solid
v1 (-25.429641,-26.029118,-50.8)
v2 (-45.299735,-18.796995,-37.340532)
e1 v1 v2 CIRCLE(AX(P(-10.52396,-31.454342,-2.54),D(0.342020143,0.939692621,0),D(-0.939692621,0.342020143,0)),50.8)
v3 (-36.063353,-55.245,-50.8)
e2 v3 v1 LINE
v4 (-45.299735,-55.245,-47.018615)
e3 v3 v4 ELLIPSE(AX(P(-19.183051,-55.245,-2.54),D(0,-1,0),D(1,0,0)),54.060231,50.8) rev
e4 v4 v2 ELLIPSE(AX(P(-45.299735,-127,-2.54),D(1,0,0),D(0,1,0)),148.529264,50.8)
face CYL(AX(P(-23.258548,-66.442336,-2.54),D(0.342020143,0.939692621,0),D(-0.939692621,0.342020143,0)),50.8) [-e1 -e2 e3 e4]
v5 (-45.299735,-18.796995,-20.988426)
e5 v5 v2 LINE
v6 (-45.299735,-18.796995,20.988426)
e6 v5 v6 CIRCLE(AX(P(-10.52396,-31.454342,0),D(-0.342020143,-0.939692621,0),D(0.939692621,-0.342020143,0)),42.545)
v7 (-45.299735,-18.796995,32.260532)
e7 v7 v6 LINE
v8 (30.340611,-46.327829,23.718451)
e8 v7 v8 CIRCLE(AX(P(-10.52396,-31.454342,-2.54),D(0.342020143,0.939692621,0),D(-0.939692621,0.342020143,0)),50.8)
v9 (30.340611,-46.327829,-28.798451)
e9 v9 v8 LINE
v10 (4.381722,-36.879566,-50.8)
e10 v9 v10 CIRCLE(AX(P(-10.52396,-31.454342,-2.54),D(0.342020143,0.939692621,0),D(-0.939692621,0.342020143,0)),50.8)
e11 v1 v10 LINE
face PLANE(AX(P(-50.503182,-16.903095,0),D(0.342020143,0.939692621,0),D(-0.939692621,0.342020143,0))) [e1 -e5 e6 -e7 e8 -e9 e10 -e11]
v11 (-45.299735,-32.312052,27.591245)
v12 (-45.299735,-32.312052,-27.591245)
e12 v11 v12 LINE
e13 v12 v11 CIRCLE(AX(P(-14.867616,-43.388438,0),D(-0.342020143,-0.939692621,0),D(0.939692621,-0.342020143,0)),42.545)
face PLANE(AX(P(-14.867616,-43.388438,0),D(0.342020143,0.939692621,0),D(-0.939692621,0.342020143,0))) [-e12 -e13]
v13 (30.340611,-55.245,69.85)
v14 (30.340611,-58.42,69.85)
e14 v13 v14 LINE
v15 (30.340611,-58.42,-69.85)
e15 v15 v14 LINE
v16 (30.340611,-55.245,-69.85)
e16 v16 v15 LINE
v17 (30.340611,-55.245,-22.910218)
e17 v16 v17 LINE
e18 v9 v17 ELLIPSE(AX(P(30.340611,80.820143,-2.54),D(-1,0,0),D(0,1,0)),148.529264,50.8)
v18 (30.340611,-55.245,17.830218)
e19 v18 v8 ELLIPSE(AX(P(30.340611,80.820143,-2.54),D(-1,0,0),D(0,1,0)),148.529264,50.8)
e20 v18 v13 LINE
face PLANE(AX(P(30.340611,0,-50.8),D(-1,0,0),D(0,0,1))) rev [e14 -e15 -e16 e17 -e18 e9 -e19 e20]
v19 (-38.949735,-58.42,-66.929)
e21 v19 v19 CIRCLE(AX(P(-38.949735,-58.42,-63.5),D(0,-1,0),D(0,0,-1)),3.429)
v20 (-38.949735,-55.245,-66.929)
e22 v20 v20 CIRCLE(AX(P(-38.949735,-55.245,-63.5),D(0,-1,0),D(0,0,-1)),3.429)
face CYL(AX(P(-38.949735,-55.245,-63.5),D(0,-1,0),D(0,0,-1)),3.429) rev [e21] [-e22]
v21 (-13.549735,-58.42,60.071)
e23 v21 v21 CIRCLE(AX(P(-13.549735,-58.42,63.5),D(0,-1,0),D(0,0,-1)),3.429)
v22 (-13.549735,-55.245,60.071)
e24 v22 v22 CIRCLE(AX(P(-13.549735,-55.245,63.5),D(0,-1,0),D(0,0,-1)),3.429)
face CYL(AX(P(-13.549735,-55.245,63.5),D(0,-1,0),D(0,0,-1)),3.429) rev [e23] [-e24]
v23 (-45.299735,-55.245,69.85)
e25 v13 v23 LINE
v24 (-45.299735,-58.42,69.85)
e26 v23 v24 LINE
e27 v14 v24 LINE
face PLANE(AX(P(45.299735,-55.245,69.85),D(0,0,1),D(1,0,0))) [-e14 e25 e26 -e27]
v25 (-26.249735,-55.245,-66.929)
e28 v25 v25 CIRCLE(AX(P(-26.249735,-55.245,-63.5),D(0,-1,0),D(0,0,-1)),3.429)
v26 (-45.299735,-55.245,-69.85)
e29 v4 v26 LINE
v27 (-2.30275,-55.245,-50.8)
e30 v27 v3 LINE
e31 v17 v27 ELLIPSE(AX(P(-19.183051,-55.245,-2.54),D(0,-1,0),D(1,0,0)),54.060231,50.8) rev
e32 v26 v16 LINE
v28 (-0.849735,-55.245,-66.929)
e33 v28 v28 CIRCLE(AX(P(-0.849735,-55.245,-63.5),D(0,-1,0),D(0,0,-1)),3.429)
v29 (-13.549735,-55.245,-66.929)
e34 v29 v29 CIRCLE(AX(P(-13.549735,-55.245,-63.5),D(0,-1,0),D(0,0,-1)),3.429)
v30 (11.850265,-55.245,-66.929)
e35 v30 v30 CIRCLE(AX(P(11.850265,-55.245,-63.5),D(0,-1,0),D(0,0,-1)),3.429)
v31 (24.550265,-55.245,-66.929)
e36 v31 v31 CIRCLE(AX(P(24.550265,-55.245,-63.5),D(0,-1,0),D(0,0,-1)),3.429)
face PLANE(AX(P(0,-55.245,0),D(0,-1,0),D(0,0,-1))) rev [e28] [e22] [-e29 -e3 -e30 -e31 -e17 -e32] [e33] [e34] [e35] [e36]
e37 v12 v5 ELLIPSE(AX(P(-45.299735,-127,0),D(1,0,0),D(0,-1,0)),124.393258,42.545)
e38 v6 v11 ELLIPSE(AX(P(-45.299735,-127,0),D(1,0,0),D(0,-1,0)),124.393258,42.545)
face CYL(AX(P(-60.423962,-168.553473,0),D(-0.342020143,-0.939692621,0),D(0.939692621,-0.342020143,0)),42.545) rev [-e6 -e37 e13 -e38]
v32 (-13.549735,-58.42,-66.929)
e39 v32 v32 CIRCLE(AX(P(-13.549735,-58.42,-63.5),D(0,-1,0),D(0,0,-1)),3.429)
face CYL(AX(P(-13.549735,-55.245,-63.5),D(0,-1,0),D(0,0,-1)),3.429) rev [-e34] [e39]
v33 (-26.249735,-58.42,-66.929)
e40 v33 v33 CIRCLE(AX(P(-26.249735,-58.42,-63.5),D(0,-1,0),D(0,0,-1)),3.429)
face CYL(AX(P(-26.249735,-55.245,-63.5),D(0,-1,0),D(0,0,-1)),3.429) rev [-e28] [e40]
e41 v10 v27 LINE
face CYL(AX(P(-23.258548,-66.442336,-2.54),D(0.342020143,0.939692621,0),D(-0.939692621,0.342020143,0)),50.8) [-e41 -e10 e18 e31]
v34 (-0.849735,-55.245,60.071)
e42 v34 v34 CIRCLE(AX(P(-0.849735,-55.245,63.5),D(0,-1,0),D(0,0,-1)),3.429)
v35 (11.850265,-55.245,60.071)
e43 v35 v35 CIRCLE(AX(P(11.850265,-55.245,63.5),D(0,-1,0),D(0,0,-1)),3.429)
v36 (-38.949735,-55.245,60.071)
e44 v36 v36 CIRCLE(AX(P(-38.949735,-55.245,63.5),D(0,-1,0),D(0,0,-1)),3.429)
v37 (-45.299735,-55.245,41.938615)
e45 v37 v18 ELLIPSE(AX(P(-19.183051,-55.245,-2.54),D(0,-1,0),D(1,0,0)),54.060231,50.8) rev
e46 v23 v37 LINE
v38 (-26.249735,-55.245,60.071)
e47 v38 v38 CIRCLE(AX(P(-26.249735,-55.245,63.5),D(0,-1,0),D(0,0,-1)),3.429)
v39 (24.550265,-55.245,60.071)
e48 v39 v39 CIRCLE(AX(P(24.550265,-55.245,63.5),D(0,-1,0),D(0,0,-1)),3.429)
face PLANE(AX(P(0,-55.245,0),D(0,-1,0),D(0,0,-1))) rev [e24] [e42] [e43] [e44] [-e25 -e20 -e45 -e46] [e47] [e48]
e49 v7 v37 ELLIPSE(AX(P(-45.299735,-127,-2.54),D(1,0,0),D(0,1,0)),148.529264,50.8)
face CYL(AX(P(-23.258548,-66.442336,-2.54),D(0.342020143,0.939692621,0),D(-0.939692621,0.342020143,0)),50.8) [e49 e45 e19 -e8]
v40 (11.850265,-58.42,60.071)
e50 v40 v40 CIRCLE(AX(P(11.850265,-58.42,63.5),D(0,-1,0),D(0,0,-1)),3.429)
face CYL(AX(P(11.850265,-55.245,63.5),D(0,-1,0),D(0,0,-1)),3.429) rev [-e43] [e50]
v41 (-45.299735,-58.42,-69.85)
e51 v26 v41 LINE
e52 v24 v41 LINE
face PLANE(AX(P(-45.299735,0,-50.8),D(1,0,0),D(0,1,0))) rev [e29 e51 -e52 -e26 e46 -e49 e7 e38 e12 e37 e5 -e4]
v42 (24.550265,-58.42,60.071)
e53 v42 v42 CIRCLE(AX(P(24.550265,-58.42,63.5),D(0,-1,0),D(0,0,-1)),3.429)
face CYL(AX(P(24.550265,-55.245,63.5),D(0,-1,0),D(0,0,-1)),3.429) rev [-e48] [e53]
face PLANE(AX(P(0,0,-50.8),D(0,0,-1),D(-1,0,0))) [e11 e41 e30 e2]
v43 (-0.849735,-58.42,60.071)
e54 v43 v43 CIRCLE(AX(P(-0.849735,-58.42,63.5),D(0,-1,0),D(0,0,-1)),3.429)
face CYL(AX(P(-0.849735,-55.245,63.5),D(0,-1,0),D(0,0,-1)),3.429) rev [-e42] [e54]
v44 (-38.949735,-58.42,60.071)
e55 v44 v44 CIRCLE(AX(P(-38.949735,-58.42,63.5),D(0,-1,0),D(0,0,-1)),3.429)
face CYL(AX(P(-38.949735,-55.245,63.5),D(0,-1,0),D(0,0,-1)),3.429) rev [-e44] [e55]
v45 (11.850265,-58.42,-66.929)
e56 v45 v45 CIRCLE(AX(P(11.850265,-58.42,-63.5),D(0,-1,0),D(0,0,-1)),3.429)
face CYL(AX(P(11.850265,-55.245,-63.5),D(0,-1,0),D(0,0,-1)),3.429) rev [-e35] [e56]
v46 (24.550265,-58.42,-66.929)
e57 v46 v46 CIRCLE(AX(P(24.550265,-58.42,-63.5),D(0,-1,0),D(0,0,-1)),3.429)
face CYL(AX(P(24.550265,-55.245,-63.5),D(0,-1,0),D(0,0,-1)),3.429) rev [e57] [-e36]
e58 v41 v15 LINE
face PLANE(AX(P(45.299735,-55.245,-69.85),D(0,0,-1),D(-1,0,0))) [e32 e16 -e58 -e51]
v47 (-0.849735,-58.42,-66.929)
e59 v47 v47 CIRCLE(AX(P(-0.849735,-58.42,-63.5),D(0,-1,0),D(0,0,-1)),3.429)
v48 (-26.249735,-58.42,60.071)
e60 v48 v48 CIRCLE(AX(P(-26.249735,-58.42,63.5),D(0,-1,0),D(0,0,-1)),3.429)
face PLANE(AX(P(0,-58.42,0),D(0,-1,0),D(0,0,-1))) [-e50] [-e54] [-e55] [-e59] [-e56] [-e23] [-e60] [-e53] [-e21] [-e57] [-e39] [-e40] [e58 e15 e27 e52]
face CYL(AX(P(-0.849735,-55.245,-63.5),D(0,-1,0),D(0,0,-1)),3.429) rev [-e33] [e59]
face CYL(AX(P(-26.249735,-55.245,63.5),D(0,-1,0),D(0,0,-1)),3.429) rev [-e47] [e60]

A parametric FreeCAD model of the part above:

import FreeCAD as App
import Part
import Sketcher
from FreeCAD import Vector
Q = App.Units.Quantity


def add_polygon(sketch, points):
    """Adds a closed chain of lines whose ends are joined by coincident constraints."""
    first, n = sketch.GeometryCount, len(points)
    for a, b in zip(points, points[1:] + points[:1]):
        sketch.addGeometry(Part.LineSegment(App.Vector(*a, 0), App.Vector(*b, 0)), False)
    for i in range(n):
        sketch.addConstraint(Sketcher.Constraint("Coincident", first + i, 2, first + (i + 1) % n, 1))

doc = App.newDocument("Part")
body = doc.addObject("PartDesign::Body", "Body")

sketch1 = body.newObject("Sketcher::SketchObject", "Sketch")
sketch1.AttachmentSupport = (doc.getObject("XY_Plane"), [""])
sketch1.MapMode = "FlatFace"
add_polygon(sketch1, [(-140, 0), (-140, -127), (89, -127), (89, 0)])
sketch1.addConstraint(Sketcher.Constraint("Vertical", 0))
sketch1.addConstraint(Sketcher.Constraint("Horizontal", 1))
sketch1.addConstraint(Sketcher.Constraint("Vertical", 2))
sketch1.addConstraint(Sketcher.Constraint("Horizontal", 3))
sketch1.addConstraint(Sketcher.Constraint("PointOnObject", 2, 2, -1))
sketch1.addConstraint(Sketcher.Constraint("DistanceX", 1, 1, 1, 2, Q("9 in")))
sketch1.addConstraint(Sketcher.Constraint("DistanceY", 0, 2, 0, 1, Q("5 in")))
sketch1.addConstraint(Sketcher.Constraint("DistanceX", 0, 2, -1, 1, Q("5.5 in")))
pad1 = body.newObject("PartDesign::Pad", "Pad")
pad1.Profile = sketch1
pad1.Length = Q("4 in")
pad1.Midplane = True

sketch2 = body.newObject("Sketcher::SketchObject", "Sketch001")
sketch2.AttachmentSupport = (doc.getObject("XY_Plane"), [""])
sketch2.MapMode = "FlatFace"
add_polygon(sketch2, [(-106, 3), (-51, -17), (-55, -29), (-15, -43), (0, -3), (40, 108), (-55, 143)])
sketch2.addGeometry(Part.LineSegment(Vector(-15, -43, 0), Vector(40, 108, 0)), True)
sketch2.addConstraint(Sketcher.Constraint("Coincident", 7, 1, 2, 2))
sketch2.addConstraint(Sketcher.Constraint("Coincident", 7, 2, 4, 2))
sketch2.addConstraint(Sketcher.Constraint("PointOnObject", 3, 2, -2))
sketch2.addConstraint(Sketcher.Constraint("Perpendicular", 0, 1))
sketch2.addConstraint(Sketcher.Constraint("Perpendicular", 1, 2))
sketch2.addConstraint(Sketcher.Constraint("Perpendicular", 2, 3))
sketch2.addConstraint(Sketcher.Constraint("Parallel", 3, 4))
sketch2.addConstraint(Sketcher.Constraint("Perpendicular", 4, 5))
sketch2.addConstraint(Sketcher.Constraint("Perpendicular", 5, 6))
sketch2.addConstraint(Sketcher.Constraint("Distance", 5, Q("4 in")))
sketch2.addConstraint(Sketcher.Constraint("Angle", 0, Q("-20 deg")))
sketch2.addConstraint(Sketcher.Constraint("Distance", 1, Q("0.5 in")))
sketch2.addConstraint(Sketcher.Constraint("DistanceY", 3, 2, -1, 1, Q("0.1 in")))
sketch2.addConstraint(Sketcher.Constraint("Distance", 0, Q("2.325 in")))
sketch2.addConstraint(Sketcher.Constraint("Distance", 3, 43.47))
sketch2.addConstraint(Sketcher.Constraint("DistanceY", 2, 2, 4, 2, 151.5425))
groove = body.newObject("PartDesign::Groove", "Groove")
groove.Profile = sketch2
groove.ReferenceAxis = (sketch2, ["Axis0"])
groove.Angle = 360

sketch3 = body.newObject("Sketcher::SketchObject", "Sketch002")
sketch3.AttachmentSupport = (doc.getObject("XY_Plane"), [""])
sketch3.MapMode = "FlatFace"
add_polygon(sketch3, [(-140, 0), (-140, -127), (-45, -127), (-45, 0)])
add_polygon(sketch3, [(30, 0), (30, -127), (89, -127), (89, 0)])
sketch3.addConstraint(Sketcher.Constraint("Vertical", 0))
sketch3.addConstraint(Sketcher.Constraint("Horizontal", 1))
sketch3.addConstraint(Sketcher.Constraint("Vertical", 2))
sketch3.addConstraint(Sketcher.Constraint("Horizontal", 3))
sketch3.addConstraint(Sketcher.Constraint("Vertical", 4))
sketch3.addConstraint(Sketcher.Constraint("Horizontal", 5))
sketch3.addConstraint(Sketcher.Constraint("Vertical", 6))
sketch3.addConstraint(Sketcher.Constraint("Horizontal", 7))
sketch3.addConstraint(Sketcher.Constraint("PointOnObject", 2, 2, -1))
sketch3.addConstraint(Sketcher.Constraint("PointOnObject", 6, 2, -1))
sketch3.addConstraint(Sketcher.Constraint("Horizontal", 1, 2, 4, 2))
sketch3.addConstraint(Sketcher.Constraint("DistanceY", 0, 2, 0, 1, Q("5 in")))
sketch3.addConstraint(Sketcher.Constraint("DistanceX", 0, 2, 5, 2, Q("9 in")))
sketch3.addConstraint(Sketcher.Constraint("DistanceX", 0, 2, -1, 1, Q("5.5 in")))
sketch3.addConstraint(Sketcher.Constraint("DistanceX", 5, 1, 5, 2, 58.559389))
sketch3.addConstraint(Sketcher.Constraint("DistanceX", 1, 1, 1, 2, 94.400265))
pocket1 = body.newObject("PartDesign::Pocket", "Pocket")
pocket1.Profile = sketch3
pocket1.Type = "ThroughAll"
pocket1.Midplane = True

sketch4 = body.newObject("Sketcher::SketchObject", "Sketch003")
sketch4.AttachmentSupport = (doc.getObject("XZ_Plane"), [""])
sketch4.MapMode = "FlatFace"
sketch4.AttachmentOffset = App.Placement(Vector(0, 0, 5 * 25.4), App.Rotation())
add_polygon(sketch4, [(-45, 51), (-45, -51), (30, -51), (30, 51)])
sketch4.addConstraint(Sketcher.Constraint("Vertical", 0))
sketch4.addConstraint(Sketcher.Constraint("Horizontal", 1))
sketch4.addConstraint(Sketcher.Constraint("Vertical", 2))
sketch4.addConstraint(Sketcher.Constraint("Horizontal", 3))
sketch4.addConstraint(Sketcher.Constraint("DistanceY", 0, 2, 0, 1, Q("4 in")))
sketch4.addConstraint(Sketcher.Constraint("DistanceY", 0, 2, -1, 1, Q("2 in")))
sketch4.addConstraint(Sketcher.Constraint("DistanceX", 1, 1, 1, 2, 75.640346))
sketch4.addConstraint(Sketcher.Constraint("DistanceX", -1, 1, 1, 2, 30.340611))
pocket2 = body.newObject("PartDesign::Pocket", "Pocket001")
pocket2.Profile = sketch4
pocket2.Length = Q("2.7 in")

sketch5 = body.newObject("Sketcher::SketchObject", "Sketch004")
sketch5.Placement = App.Placement(Vector(-15.683956, -43.091315, 0), App.Rotation(Vector(0.939692621, -0.342020143, 0), Vector(0, 0, -1), Vector(0.342020143, 0.939692621, 0), "ZXY"))
add_polygon(sketch5, [(-50, 65), (-50, -65), (63, -65), (63, 65)])
sketch5.addGeometry(Part.Circle(Vector(1, 3, 0), Vector(0, 0, 1), 51), False)
sketch5.addConstraint(Sketcher.Constraint("Vertical", 0))
sketch5.addConstraint(Sketcher.Constraint("Horizontal", 1))
sketch5.addConstraint(Sketcher.Constraint("Vertical", 2))
sketch5.addConstraint(Sketcher.Constraint("Horizontal", 3))
sketch5.addConstraint(Sketcher.Constraint("Diameter", 4, Q("4 in")))
sketch5.addConstraint(Sketcher.Constraint("DistanceY", -1, 1, 4, 3, Q("0.1 in")))
sketch5.addConstraint(Sketcher.Constraint("DistanceX", 1, 1, 1, 2, 113.175))
sketch5.addConstraint(Sketcher.Constraint("DistanceY", 0, 2, 0, 1, 130.144))
sketch5.addConstraint(Sketcher.Constraint("DistanceX", 0, 2, -1, 1, 50.411))
sketch5.addConstraint(Sketcher.Constraint("DistanceY", 0, 2, -1, 1, 65.072))
sketch5.addConstraint(Sketcher.Constraint("DistanceX", -1, 1, 4, 3, 0.868731))
pocket3 = body.newObject("PartDesign::Pocket", "Pocket002")
pocket3.Profile = sketch5
pocket3.Type = "ThroughAll"
pocket3.Midplane = True

sketch6 = body.newObject("Sketcher::SketchObject", "Sketch005")
sketch6.AttachmentSupport = (doc.getObject("XZ_Plane"), [""])
sketch6.MapMode = "FlatFace"
sketch6.AttachmentOffset = App.Placement(Vector(0, 0, 2.3 * 25.4), App.Rotation())
add_polygon(sketch6, [(-45.3, 69.8), (-45.3, -69.8), (45.3, -69.8), (45.3, 69.8)])
sketch6.addGeometry(Part.Circle(Vector(-38.9, -63.5, 0), Vector(0, 0, 1), 3.4), False)
sketch6.addGeometry(Part.Circle(Vector(-26.2, -63.5, 0), Vector(0, 0, 1), 3.4), False)
sketch6.addGeometry(Part.Circle(Vector(-13.5, -63.5, 0), Vector(0, 0, 1), 3.4), False)
sketch6.addGeometry(Part.Circle(Vector(-0.8, -63.5, 0), Vector(0, 0, 1), 3.4), False)
sketch6.addGeometry(Part.Circle(Vector(11.9, -63.5, 0), Vector(0, 0, 1), 3.4), False)
sketch6.addGeometry(Part.Circle(Vector(24.6, -63.5, 0), Vector(0, 0, 1), 3.4), False)
add_polygon(sketch6, [(10, -28.5), (8.2, 23.6), (17.6, 30.4), (24.6, 23.6), (27.6, 8.6), (26.1, -20.9), (15.4, -36)])
sketch6.addGeometry(Part.Circle(Vector(-38.9, 63.5, 0), Vector(0, 0, 1), 3.4), False)
sketch6.addGeometry(Part.Circle(Vector(-26.2, 63.5, 0), Vector(0, 0, 1), 3.4), False)
sketch6.addGeometry(Part.Circle(Vector(-13.5, 63.5, 0), Vector(0, 0, 1), 3.4), False)
sketch6.addGeometry(Part.Circle(Vector(-0.8, 63.5, 0), Vector(0, 0, 1), 3.4), False)
sketch6.addGeometry(Part.Circle(Vector(11.9, 63.5, 0), Vector(0, 0, 1), 3.4), False)
sketch6.addGeometry(Part.Circle(Vector(24.6, 63.5, 0), Vector(0, 0, 1), 3.4), False)
sketch6.addConstraint(Sketcher.Constraint("Vertical", 0))
sketch6.addConstraint(Sketcher.Constraint("Horizontal", 1))
sketch6.addConstraint(Sketcher.Constraint("Vertical", 2))
sketch6.addConstraint(Sketcher.Constraint("Horizontal", 3))
sketch6.addConstraint(Sketcher.Constraint("Equal", 4, 5))
sketch6.addConstraint(Sketcher.Constraint("Equal", 5, 6))
sketch6.addConstraint(Sketcher.Constraint("Equal", 6, 7))
sketch6.addConstraint(Sketcher.Constraint("Equal", 7, 8))
sketch6.addConstraint(Sketcher.Constraint("Equal", 8, 9))
sketch6.addConstraint(Sketcher.Constraint("Equal", 9, 17))
sketch6.addConstraint(Sketcher.Constraint("Equal", 17, 18))
sketch6.addConstraint(Sketcher.Constraint("Equal", 18, 19))
sketch6.addConstraint(Sketcher.Constraint("Equal", 19, 20))
sketch6.addConstraint(Sketcher.Constraint("Equal", 20, 21))
sketch6.addConstraint(Sketcher.Constraint("Equal", 21, 22))
sketch6.addConstraint(Sketcher.Constraint("Symmetric", 0, 2, 2, 2, -1, 1))
sketch6.addConstraint(Sketcher.Constraint("Symmetric", 4, 3, 17, 3, -1))
sketch6.addConstraint(Sketcher.Constraint("Symmetric", 5, 3, 18, 3, -1))
sketch6.addConstraint(Sketcher.Constraint("Symmetric", 6, 3, 19, 3, -1))
sketch6.addConstraint(Sketcher.Constraint("Symmetric", 7, 3, 20, 3, -1))
sketch6.addConstraint(Sketcher.Constraint("Symmetric", 8, 3, 21, 3, -1))
sketch6.addConstraint(Sketcher.Constraint("Symmetric", 9, 3, 22, 3, -1))
sketch6.addConstraint(Sketcher.Constraint("Perpendicular", 11, 16))
sketch6.addConstraint(Sketcher.Constraint("Horizontal", 4, 3, 5, 3))
sketch6.addConstraint(Sketcher.Constraint("Horizontal", 5, 3, 6, 3))
sketch6.addConstraint(Sketcher.Constraint("Horizontal", 6, 3, 7, 3))
sketch6.addConstraint(Sketcher.Constraint("Horizontal", 7, 3, 8, 3))
sketch6.addConstraint(Sketcher.Constraint("Horizontal", 8, 3, 9, 3))
sketch6.addConstraint(Sketcher.Constraint("Horizontal", 10, 2, 12, 2))
sketch6.addConstraint(Sketcher.Constraint("Vertical", 22, 3, 12, 2))
sketch6.addConstraint(Sketcher.Constraint("Diameter", 4, Q("0.27 in")))
sketch6.addConstraint(Sketcher.Constraint("DistanceY", 0, 2, 0, 1, Q("5.5 in")))
sketch6.addConstraint(Sketcher.Constraint("DistanceX", 4, 3, 6, 3, Q("1 in")))
sketch6.addConstraint(Sketcher.Constraint("DistanceX", 5, 3, 7, 3, Q("1 in")))
sketch6.addConstraint(Sketcher.Constraint("DistanceX", 6, 3, 8, 3, Q("1 in")))
sketch6.addConstraint(Sketcher.Constraint("DistanceX", 7, 3, 9, 3, Q("1 in")))
sketch6.addConstraint(Sketcher.Constraint("DistanceY", 4, 3, 17, 3, Q("5 in")))
sketch6.addConstraint(Sketcher.Constraint("DistanceX", 4, 3, 5, 3, Q("0.5 in")))
sketch6.addConstraint(Sketcher.Constraint("DistanceX", 0, 2, 4, 3, Q("0.25 in")))
sketch6.addConstraint(Sketcher.Constraint("DistanceX", 16, 2, 15, 2, Q("0.213 in")))
sketch6.addConstraint(Sketcher.Constraint("DistanceX", 1, 1, 1, 2, 90.599471))
sketch6.addConstraint(Sketcher.Constraint("DistanceX", 10, 2, 21, 3, 3.667))
sketch6.addConstraint(Sketcher.Constraint("Distance", 11, 11.554479))
sketch6.addConstraint(Sketcher.Constraint("Distance", 14, 29.529209))
sketch6.addConstraint(Sketcher.Constraint("Distance", 16, 9.27909))
sketch6.addConstraint(Sketcher.Constraint("DistanceX", -1, 1, 13, 2, 27.61175))
sketch6.addConstraint(Sketcher.Constraint("DistanceY", 14, 2, 12, 2, 44.54284))
sketch6.addConstraint(Sketcher.Constraint("DistanceX", 8, 3, 15, 2, 3.559839))
sketch6.addConstraint(Sketcher.Constraint("DistanceY", 16, 2, 14, 2, 7.538652))
sketch6.addConstraint(Sketcher.Constraint("Distance", 13, 15.361495))
sketch6.addConstraint(Sketcher.Constraint("DistanceY", -1, 1, 10, 2, 23.631227))
pad2 = body.newObject("PartDesign::Pad", "Pad001")
pad2.Profile = sketch6
pad2.Length = Q("0.125 in")
pad2.Reversed = True

sketch7 = body.newObject("Sketcher::SketchObject", "Sketch006")
sketch7.AttachmentSupport = (doc.getObject("XZ_Plane"), [""])
sketch7.MapMode = "FlatFace"
sketch7.AttachmentOffset = App.Placement(Vector(0, 0, 2.175 * 25.4), App.Rotation())
add_polygon(sketch7, [(30, -70), (30, 70), (45, 70), (45, -70)])
sketch7.addConstraint(Sketcher.Constraint("Vertical", 0))
sketch7.addConstraint(Sketcher.Constraint("Horizontal", 1))
sketch7.addConstraint(Sketcher.Constraint("Vertical", 2))
sketch7.addConstraint(Sketcher.Constraint("Horizontal", 3))
sketch7.addConstraint(Sketcher.Constraint("DistanceY", 0, 1, 0, 2, Q("5.5 in")))
sketch7.addConstraint(Sketcher.Constraint("DistanceY", -1, 1, 0, 2, Q("2.75 in")))
sketch7.addConstraint(Sketcher.Constraint("DistanceX", 1, 1, 1, 2, 14.959124))
sketch7.addConstraint(Sketcher.Constraint("DistanceX", -1, 1, 0, 2, 30.340611))
pocket4 = body.newObject("PartDesign::Pocket", "Pocket003")
pocket4.Profile = sketch7
pocket4.Type = "ThroughAll"
pocket4.Midplane = True

doc.recompute()
